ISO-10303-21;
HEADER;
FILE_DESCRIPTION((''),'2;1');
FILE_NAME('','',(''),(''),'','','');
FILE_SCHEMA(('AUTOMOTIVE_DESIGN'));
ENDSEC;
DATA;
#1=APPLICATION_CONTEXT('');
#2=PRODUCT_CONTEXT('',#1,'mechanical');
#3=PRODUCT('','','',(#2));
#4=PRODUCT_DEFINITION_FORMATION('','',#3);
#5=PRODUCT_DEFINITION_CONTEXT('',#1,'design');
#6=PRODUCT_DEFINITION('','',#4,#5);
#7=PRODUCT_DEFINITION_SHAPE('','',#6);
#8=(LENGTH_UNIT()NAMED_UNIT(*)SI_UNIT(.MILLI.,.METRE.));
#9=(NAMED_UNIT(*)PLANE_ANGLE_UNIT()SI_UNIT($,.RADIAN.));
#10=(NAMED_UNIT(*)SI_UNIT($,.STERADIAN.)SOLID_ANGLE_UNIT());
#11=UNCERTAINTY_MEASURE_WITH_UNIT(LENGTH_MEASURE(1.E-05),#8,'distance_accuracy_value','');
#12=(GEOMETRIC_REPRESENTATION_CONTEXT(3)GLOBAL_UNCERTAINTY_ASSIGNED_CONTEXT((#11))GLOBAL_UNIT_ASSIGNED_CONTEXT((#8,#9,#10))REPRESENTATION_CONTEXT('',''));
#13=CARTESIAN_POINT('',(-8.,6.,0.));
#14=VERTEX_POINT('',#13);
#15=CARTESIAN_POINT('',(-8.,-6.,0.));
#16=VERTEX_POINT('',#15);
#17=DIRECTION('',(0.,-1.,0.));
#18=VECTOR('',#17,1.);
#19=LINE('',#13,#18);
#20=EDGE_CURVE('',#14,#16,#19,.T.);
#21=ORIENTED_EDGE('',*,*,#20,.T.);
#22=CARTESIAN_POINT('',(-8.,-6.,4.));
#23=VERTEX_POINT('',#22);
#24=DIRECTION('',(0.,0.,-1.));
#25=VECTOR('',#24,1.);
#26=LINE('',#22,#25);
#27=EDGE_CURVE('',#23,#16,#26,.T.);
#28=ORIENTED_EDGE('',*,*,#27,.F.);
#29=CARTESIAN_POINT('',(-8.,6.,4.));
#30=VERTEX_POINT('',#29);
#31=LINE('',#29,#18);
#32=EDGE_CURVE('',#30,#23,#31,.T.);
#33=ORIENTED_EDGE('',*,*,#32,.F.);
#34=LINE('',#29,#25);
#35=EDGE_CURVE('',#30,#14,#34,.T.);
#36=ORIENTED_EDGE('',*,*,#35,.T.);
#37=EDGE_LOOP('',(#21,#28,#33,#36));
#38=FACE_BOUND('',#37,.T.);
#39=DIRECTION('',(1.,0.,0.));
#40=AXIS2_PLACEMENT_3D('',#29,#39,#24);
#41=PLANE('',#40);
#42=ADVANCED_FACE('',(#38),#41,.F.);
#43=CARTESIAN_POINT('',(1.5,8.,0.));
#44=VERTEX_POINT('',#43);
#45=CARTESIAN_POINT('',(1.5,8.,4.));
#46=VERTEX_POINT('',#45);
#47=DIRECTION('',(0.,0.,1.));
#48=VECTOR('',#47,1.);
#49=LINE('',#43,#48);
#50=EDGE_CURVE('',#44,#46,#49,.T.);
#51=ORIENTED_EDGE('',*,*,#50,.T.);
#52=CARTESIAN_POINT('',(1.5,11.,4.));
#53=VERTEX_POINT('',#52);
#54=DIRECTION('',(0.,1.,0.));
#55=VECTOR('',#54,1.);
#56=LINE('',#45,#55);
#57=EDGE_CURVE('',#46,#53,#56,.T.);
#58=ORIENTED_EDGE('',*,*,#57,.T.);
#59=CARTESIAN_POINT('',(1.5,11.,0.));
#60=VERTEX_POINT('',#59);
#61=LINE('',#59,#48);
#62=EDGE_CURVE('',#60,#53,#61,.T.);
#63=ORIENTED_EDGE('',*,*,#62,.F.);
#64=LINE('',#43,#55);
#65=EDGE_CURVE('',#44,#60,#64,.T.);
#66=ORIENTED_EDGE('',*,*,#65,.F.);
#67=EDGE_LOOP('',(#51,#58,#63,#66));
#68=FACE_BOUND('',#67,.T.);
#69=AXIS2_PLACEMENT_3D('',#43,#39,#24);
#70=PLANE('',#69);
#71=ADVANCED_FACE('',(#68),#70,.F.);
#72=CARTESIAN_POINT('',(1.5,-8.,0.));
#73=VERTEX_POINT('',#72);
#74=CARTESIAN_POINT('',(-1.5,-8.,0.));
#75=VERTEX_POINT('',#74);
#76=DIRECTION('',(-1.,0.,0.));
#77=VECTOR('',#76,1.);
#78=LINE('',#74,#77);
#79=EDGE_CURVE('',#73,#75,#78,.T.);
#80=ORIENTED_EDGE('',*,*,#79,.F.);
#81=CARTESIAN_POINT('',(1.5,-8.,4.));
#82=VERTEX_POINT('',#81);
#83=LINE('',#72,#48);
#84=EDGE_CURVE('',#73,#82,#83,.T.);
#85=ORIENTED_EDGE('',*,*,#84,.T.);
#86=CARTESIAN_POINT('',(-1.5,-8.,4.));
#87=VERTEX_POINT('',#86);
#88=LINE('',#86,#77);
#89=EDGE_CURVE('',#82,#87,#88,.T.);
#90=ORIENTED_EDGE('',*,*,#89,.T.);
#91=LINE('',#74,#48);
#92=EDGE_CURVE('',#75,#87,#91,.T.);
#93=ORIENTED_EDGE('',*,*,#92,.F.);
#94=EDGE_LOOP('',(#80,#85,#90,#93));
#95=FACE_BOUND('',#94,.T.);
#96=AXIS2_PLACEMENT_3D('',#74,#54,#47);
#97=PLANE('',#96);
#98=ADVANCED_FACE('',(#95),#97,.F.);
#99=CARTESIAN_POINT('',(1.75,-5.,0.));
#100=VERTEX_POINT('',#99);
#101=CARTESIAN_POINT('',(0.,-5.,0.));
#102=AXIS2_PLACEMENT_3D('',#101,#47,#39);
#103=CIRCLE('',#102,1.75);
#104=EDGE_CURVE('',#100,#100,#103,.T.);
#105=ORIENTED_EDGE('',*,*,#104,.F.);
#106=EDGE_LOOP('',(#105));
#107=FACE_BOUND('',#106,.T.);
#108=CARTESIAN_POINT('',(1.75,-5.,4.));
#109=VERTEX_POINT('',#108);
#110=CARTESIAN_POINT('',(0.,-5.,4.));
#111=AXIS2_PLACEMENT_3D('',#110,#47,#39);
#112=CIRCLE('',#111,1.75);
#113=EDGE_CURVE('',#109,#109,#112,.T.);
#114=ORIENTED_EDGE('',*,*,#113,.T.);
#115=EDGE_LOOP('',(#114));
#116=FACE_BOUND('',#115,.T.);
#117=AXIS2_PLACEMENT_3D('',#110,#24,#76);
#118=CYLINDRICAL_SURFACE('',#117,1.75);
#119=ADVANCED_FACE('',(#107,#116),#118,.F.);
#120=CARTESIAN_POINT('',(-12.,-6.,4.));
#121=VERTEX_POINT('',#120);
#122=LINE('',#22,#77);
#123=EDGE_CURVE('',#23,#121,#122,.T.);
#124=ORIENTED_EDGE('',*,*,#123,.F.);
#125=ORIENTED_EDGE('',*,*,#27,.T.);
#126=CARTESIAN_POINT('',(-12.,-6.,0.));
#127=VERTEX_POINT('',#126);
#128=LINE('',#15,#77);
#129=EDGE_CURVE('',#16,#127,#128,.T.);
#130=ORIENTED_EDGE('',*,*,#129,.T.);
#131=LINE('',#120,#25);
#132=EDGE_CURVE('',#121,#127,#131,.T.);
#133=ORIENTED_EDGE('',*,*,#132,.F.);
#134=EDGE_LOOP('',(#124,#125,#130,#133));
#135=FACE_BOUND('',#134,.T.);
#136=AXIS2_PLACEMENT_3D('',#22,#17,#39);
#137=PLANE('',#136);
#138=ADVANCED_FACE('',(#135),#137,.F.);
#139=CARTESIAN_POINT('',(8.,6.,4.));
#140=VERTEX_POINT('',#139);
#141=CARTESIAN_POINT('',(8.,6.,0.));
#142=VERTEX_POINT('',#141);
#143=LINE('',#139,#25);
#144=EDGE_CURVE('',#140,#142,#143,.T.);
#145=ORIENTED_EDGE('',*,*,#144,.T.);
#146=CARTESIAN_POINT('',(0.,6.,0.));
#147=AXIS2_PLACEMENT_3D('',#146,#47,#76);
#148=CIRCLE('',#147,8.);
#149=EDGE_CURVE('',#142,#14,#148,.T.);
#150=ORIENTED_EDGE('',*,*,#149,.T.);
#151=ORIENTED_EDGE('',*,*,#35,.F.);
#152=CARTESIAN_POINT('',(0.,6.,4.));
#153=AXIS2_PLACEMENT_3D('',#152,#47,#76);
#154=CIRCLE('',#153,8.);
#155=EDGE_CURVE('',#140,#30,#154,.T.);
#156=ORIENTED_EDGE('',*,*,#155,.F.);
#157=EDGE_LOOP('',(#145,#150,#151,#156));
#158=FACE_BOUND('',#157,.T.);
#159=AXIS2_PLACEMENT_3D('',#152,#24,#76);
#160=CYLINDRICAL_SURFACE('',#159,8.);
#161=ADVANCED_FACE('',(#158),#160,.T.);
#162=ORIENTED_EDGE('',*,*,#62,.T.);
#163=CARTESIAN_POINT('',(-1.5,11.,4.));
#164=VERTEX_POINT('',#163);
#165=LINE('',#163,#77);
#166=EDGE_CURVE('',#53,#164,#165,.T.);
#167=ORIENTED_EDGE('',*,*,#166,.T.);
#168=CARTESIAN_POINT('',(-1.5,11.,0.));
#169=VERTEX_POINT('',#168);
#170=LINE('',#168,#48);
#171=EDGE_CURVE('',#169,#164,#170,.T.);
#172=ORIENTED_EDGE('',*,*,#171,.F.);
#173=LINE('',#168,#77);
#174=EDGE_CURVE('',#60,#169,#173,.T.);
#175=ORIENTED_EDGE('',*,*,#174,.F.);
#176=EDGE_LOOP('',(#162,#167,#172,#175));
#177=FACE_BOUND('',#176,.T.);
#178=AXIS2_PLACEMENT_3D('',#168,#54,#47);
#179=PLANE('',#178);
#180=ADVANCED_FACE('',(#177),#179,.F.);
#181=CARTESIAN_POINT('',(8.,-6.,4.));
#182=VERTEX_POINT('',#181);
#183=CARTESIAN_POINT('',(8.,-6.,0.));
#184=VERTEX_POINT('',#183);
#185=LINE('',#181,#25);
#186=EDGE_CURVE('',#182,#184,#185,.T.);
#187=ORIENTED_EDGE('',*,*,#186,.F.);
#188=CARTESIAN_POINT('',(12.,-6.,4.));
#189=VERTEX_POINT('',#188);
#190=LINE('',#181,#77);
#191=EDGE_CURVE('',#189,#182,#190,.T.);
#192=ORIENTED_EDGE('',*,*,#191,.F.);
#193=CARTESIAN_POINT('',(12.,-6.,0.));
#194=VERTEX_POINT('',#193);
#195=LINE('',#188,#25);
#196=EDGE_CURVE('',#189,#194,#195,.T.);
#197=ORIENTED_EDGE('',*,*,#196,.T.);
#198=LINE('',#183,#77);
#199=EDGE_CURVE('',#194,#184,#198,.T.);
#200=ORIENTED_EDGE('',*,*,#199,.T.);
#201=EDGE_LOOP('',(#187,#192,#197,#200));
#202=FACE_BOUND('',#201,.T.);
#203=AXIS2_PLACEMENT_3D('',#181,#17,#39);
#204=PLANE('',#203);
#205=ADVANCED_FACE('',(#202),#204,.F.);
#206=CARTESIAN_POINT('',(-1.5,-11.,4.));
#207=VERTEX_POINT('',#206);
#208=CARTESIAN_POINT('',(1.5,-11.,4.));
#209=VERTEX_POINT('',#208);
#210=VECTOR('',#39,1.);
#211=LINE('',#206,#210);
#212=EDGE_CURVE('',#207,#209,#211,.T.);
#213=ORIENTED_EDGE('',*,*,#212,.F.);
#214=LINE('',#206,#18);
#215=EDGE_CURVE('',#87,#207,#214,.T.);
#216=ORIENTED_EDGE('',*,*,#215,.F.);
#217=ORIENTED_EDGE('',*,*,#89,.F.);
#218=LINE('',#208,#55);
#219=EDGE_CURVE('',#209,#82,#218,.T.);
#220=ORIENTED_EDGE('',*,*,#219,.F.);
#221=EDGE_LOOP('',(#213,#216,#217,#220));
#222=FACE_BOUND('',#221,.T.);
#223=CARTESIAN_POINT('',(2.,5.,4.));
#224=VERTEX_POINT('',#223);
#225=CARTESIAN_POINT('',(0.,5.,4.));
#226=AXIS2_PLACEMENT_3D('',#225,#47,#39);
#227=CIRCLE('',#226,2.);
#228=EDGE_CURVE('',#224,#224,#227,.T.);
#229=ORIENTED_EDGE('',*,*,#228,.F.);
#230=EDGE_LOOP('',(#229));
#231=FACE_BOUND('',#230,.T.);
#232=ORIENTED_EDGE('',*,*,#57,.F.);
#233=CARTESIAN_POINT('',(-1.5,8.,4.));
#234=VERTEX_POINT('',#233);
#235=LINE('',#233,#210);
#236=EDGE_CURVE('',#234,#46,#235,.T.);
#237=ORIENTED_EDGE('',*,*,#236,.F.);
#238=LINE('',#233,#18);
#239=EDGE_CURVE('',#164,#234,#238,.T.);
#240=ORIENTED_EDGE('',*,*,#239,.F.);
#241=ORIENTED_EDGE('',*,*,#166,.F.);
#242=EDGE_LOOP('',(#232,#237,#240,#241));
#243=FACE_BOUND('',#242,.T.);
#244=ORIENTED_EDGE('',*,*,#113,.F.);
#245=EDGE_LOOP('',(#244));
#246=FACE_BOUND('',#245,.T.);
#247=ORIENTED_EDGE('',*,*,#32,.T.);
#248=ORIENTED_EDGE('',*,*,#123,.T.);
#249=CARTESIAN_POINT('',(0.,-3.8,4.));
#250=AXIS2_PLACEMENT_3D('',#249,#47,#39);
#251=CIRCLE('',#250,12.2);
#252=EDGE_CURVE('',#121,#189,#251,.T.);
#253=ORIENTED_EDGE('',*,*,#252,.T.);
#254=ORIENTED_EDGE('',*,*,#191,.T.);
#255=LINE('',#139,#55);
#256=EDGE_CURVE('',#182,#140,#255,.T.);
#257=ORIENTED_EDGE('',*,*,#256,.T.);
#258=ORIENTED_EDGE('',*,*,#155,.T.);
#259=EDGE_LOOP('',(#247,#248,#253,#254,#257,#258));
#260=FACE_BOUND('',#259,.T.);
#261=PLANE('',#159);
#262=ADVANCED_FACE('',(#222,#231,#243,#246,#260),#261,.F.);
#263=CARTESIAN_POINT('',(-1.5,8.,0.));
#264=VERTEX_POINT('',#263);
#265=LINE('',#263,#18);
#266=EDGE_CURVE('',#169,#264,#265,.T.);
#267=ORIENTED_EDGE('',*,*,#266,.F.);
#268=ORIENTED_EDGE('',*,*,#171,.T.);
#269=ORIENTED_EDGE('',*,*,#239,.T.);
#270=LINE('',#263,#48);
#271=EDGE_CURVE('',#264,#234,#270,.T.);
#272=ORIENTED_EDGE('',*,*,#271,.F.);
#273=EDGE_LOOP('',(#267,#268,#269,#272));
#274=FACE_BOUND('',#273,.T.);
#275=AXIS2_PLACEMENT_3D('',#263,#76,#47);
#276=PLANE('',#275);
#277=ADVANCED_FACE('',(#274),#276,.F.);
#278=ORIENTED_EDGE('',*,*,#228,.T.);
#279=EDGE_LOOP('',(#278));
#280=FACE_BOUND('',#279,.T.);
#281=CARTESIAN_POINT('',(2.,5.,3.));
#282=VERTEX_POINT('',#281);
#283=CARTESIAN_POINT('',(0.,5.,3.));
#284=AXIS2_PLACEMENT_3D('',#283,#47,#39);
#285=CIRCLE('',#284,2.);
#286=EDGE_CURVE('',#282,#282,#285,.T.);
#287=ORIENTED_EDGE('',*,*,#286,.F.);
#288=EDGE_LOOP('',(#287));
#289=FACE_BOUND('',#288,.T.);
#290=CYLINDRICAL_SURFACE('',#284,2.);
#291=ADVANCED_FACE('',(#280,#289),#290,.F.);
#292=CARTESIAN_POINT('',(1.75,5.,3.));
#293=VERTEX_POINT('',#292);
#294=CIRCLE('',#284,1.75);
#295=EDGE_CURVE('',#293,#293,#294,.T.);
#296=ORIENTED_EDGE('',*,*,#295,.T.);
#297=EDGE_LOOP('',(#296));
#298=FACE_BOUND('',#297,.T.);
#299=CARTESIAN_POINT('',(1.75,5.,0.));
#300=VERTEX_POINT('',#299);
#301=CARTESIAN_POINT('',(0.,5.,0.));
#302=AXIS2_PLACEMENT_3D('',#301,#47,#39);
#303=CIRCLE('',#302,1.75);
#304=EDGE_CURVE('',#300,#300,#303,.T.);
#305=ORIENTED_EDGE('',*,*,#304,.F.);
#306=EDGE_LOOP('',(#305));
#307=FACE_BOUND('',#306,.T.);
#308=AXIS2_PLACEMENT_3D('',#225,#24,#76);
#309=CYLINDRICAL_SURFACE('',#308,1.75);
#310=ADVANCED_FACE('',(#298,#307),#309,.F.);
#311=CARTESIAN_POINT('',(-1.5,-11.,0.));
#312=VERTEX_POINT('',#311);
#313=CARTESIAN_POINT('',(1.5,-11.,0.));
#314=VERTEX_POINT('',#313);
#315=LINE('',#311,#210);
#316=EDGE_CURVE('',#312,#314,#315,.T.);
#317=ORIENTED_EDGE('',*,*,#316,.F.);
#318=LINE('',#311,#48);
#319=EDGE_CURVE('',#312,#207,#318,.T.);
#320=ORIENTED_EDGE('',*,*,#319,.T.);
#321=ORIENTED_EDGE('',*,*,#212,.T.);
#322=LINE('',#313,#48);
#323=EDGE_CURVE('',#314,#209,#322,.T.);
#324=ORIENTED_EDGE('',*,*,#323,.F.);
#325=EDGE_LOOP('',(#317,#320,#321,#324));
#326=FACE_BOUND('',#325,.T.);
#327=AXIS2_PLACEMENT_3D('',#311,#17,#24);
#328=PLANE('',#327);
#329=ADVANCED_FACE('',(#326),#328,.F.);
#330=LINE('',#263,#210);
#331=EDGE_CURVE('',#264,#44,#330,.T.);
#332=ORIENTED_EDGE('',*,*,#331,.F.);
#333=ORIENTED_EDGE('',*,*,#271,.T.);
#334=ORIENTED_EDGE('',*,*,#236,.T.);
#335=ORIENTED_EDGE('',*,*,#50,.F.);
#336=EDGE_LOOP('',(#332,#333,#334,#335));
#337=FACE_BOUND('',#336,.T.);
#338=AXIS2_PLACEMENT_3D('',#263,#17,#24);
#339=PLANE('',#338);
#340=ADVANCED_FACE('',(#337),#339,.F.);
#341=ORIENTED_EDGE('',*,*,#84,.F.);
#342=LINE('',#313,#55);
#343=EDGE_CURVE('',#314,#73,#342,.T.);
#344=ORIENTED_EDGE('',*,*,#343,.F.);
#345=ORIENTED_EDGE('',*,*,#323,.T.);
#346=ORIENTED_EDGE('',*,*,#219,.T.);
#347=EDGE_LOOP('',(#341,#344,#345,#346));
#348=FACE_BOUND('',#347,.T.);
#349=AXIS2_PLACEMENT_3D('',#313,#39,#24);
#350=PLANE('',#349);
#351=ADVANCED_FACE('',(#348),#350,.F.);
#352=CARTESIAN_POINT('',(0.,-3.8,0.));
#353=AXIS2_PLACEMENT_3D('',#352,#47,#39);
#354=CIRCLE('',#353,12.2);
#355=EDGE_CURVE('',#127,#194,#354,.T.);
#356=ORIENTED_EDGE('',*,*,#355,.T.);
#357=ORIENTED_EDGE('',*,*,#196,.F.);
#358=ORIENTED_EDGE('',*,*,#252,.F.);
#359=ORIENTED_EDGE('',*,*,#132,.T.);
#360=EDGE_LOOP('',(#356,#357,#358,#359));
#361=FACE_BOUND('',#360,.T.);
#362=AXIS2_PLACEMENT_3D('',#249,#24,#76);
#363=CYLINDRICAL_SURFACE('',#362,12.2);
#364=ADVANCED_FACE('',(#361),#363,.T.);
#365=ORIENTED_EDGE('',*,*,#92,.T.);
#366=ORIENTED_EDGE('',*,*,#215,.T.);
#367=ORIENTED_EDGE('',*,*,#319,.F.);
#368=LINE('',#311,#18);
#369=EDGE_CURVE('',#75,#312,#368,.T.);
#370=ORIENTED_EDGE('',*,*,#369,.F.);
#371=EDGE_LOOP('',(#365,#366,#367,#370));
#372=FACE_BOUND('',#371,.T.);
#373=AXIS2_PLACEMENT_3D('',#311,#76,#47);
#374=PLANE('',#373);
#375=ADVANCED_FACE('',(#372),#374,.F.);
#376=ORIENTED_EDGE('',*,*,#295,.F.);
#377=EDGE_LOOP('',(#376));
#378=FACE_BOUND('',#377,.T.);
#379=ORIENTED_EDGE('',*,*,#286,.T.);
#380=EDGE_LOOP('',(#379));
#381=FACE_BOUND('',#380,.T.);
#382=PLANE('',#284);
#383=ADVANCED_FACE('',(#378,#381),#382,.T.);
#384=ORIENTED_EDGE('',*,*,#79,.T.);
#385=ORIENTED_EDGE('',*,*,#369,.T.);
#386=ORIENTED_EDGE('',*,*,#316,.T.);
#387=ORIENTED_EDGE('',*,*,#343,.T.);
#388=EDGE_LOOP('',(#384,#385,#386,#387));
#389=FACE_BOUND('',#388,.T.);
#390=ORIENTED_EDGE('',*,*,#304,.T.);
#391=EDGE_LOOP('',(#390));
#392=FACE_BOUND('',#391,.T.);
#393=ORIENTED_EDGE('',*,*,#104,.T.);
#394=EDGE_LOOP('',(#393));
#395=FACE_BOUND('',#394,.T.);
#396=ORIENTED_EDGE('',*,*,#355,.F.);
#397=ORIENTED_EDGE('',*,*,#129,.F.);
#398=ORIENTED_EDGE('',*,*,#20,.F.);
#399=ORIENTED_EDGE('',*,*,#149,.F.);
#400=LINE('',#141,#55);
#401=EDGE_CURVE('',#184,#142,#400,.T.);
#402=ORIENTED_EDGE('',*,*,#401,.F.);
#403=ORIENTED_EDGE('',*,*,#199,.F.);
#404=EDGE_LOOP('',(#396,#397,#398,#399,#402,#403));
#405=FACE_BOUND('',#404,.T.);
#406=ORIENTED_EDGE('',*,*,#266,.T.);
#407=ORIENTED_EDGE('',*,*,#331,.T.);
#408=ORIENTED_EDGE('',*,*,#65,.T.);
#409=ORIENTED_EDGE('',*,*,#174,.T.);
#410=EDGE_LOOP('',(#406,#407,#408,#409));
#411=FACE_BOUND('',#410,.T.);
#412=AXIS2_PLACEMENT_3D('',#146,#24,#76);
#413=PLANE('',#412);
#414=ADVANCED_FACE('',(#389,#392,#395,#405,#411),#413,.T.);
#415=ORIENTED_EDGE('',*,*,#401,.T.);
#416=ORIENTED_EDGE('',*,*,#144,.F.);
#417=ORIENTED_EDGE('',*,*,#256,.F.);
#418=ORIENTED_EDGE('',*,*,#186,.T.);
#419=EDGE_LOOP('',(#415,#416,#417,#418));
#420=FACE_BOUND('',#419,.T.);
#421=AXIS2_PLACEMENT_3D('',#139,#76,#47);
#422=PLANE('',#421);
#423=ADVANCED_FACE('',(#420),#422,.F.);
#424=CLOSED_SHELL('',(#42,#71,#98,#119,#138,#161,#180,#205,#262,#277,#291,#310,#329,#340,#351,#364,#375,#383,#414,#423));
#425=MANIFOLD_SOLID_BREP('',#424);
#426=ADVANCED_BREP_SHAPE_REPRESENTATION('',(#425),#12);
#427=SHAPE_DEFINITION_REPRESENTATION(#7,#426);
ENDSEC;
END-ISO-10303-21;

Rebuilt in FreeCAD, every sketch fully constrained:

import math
import FreeCAD as App
import Part
import Sketcher

V = App.Vector


def add_polygon(sketch, points):
    """Adds a closed chain of lines whose ends are joined by coincident constraints."""
    first, n = sketch.GeometryCount, len(points)
    for a, b in zip(points, points[1:] + points[:1]):
        sketch.addGeometry(Part.LineSegment(App.Vector(*a, 0), App.Vector(*b, 0)), False)
    for i in range(n):
        sketch.addConstraint(Sketcher.Constraint("Coincident", first + i, 2, first + (i + 1) % n, 1))

doc = App.newDocument("Part")
body = doc.addObject("PartDesign::Body", "Body")

# Sketch on XY plane
sketch1 = body.newObject("Sketcher::SketchObject", "Sketch")
sketch1.AttachmentSupport = (doc.getObject("XY_Plane"), [""])
sketch1.MapMode = "FlatFace"
sketch1.addGeometry(Part.LineSegment(V(-8, 6, 0), V(-8, -6, 0)), False)
sketch1.addGeometry(Part.LineSegment(V(-8, -6, 0), V(-12, -6, 0)), False)
sketch1.addGeometry(Part.ArcOfCircle(Part.Circle(V(0, -3.8, 0), V(0, 0, 1), 12.2), math.radians(-169.611142), math.radians(-10.388858)), False)
sketch1.addGeometry(Part.LineSegment(V(12, -6, 0), V(8, -6, 0)), False)
sketch1.addGeometry(Part.LineSegment(V(8, -6, 0), V(8, 6, 0)), False)
sketch1.addGeometry(Part.ArcOfCircle(Part.Circle(V(0, 6, 0), V(0, 0, 1), 8), math.radians(0), math.radians(180)), False)
sketch1.addGeometry(Part.Circle(V(0, -5, 0), V(0, 0, 1), 1.75), False)
sketch1.addGeometry(Part.Circle(V(0, 5, 0), V(0, 0, 1), 1.75), False)
sketch1.addConstraint(Sketcher.Constraint("Coincident", 0, 2, 1, 1))
sketch1.addConstraint(Sketcher.Constraint("Coincident", 1, 2, 2, 1))
sketch1.addConstraint(Sketcher.Constraint("Coincident", 2, 2, 3, 1))
sketch1.addConstraint(Sketcher.Constraint("Coincident", 3, 2, 4, 1))
sketch1.addConstraint(Sketcher.Constraint("Tangent", 4, 2, 5, 1))
sketch1.addConstraint(Sketcher.Constraint("Tangent", 5, 2, 0, 1))
sketch1.addConstraint(Sketcher.Constraint("Vertical", 0))
sketch1.addConstraint(Sketcher.Constraint("Horizontal", 1))
sketch1.addConstraint(Sketcher.Constraint("Horizontal", 3))
sketch1.addConstraint(Sketcher.Constraint("Vertical", 4))
sketch1.addConstraint(Sketcher.Constraint("Equal", 6, 7))
sketch1.addConstraint(Sketcher.Constraint("Symmetric", 6, 3, 7, 3, -1, 1))
sketch1.addConstraint(Sketcher.Constraint("Symmetric", 0, 2, 4, 2, -1, 1))
sketch1.addConstraint(Sketcher.Constraint("Symmetric", 1, 2, 2, 2, -2))
sketch1.addConstraint(Sketcher.Constraint("PointOnObject", 6, 3, -2))
sketch1.addConstraint(Sketcher.Constraint("Radius", 5, 8.0))
sketch1.addConstraint(Sketcher.Constraint("Diameter", 6, 3.5))
sketch1.addConstraint(Sketcher.Constraint("Radius", 2, 12.2))
sketch1.addConstraint(Sketcher.Constraint("DistanceX", 1, 2, 1, 1, 4.0))
sketch1.addConstraint(Sketcher.Constraint("DistanceY", 0, 2, 0, 1, 12.0))
sketch1.addConstraint(Sketcher.Constraint("DistanceY", 6, 3, -1, 1, 5.0))
pad1 = body.newObject("PartDesign::Pad", "Pad")
pad1.Profile = sketch1
pad1.Length = 4

# Sketch on XY plane
sketch2 = body.newObject("Sketcher::SketchObject", "Sketch001")
sketch2.AttachmentSupport = (doc.getObject("XY_Plane"), [""])
sketch2.MapMode = "FlatFace"
sketch2.AttachmentOffset = App.Placement(V(0, 0, 4), App.Rotation())
add_polygon(sketch2, [(-1.5, 11), (-1.5, 8), (1.5, 8), (1.5, 11)])  # lines 0-3
add_polygon(sketch2, [(-1.5, -8), (-1.5, -11), (1.5, -11), (1.5, -8)])  # lines 4-7
sketch2.addConstraint(Sketcher.Constraint("Vertical", 0))
sketch2.addConstraint(Sketcher.Constraint("Horizontal", 1))
sketch2.addConstraint(Sketcher.Constraint("Vertical", 2))
sketch2.addConstraint(Sketcher.Constraint("Horizontal", 3))
sketch2.addConstraint(Sketcher.Constraint("Vertical", 4))
sketch2.addConstraint(Sketcher.Constraint("Horizontal", 5))
sketch2.addConstraint(Sketcher.Constraint("Vertical", 6))
sketch2.addConstraint(Sketcher.Constraint("Horizontal", 7))
sketch2.addConstraint(Sketcher.Constraint("Symmetric", 2, 2, 4, 2, -1, 1))
sketch2.addConstraint(Sketcher.Constraint("Symmetric", 0, 2, 6, 2, -1, 1))
sketch2.addConstraint(Sketcher.Constraint("Vertical", 3, 2, 4, 2))
sketch2.addConstraint(Sketcher.Constraint("Equal", 7, 0))
sketch2.addConstraint(Sketcher.Constraint("DistanceX", 1, 1, 1, 2, 3.0))
sketch2.addConstraint(Sketcher.Constraint("DistanceY", -1, 1, 0, 2, 8.0))
pocket1 = body.newObject("PartDesign::Pocket", "Pocket")
pocket1.Profile = sketch2
pocket1.Type = "ThroughAll"

# Sketch on XY plane
sketch3 = body.newObject("Sketcher::SketchObject", "Sketch002")
sketch3.AttachmentSupport = (doc.getObject("XY_Plane"), [""])
sketch3.MapMode = "FlatFace"
sketch3.AttachmentOffset = App.Placement(V(0, 0, 4), App.Rotation())
sketch3.addGeometry(Part.Circle(V(0, 5, 0), V(0, 0, 1), 2), False)
sketch3.addConstraint(Sketcher.Constraint("PointOnObject", 0, 3, -2))
sketch3.addConstraint(Sketcher.Constraint("Diameter", 0, 4.0))
sketch3.addConstraint(Sketcher.Constraint("DistanceY", -1, 1, 0, 3, 5.0))
pocket2 = body.newObject("PartDesign::Pocket", "Pocket001")
pocket2.Profile = sketch3
pocket2.Length = 1

doc.recompute()
